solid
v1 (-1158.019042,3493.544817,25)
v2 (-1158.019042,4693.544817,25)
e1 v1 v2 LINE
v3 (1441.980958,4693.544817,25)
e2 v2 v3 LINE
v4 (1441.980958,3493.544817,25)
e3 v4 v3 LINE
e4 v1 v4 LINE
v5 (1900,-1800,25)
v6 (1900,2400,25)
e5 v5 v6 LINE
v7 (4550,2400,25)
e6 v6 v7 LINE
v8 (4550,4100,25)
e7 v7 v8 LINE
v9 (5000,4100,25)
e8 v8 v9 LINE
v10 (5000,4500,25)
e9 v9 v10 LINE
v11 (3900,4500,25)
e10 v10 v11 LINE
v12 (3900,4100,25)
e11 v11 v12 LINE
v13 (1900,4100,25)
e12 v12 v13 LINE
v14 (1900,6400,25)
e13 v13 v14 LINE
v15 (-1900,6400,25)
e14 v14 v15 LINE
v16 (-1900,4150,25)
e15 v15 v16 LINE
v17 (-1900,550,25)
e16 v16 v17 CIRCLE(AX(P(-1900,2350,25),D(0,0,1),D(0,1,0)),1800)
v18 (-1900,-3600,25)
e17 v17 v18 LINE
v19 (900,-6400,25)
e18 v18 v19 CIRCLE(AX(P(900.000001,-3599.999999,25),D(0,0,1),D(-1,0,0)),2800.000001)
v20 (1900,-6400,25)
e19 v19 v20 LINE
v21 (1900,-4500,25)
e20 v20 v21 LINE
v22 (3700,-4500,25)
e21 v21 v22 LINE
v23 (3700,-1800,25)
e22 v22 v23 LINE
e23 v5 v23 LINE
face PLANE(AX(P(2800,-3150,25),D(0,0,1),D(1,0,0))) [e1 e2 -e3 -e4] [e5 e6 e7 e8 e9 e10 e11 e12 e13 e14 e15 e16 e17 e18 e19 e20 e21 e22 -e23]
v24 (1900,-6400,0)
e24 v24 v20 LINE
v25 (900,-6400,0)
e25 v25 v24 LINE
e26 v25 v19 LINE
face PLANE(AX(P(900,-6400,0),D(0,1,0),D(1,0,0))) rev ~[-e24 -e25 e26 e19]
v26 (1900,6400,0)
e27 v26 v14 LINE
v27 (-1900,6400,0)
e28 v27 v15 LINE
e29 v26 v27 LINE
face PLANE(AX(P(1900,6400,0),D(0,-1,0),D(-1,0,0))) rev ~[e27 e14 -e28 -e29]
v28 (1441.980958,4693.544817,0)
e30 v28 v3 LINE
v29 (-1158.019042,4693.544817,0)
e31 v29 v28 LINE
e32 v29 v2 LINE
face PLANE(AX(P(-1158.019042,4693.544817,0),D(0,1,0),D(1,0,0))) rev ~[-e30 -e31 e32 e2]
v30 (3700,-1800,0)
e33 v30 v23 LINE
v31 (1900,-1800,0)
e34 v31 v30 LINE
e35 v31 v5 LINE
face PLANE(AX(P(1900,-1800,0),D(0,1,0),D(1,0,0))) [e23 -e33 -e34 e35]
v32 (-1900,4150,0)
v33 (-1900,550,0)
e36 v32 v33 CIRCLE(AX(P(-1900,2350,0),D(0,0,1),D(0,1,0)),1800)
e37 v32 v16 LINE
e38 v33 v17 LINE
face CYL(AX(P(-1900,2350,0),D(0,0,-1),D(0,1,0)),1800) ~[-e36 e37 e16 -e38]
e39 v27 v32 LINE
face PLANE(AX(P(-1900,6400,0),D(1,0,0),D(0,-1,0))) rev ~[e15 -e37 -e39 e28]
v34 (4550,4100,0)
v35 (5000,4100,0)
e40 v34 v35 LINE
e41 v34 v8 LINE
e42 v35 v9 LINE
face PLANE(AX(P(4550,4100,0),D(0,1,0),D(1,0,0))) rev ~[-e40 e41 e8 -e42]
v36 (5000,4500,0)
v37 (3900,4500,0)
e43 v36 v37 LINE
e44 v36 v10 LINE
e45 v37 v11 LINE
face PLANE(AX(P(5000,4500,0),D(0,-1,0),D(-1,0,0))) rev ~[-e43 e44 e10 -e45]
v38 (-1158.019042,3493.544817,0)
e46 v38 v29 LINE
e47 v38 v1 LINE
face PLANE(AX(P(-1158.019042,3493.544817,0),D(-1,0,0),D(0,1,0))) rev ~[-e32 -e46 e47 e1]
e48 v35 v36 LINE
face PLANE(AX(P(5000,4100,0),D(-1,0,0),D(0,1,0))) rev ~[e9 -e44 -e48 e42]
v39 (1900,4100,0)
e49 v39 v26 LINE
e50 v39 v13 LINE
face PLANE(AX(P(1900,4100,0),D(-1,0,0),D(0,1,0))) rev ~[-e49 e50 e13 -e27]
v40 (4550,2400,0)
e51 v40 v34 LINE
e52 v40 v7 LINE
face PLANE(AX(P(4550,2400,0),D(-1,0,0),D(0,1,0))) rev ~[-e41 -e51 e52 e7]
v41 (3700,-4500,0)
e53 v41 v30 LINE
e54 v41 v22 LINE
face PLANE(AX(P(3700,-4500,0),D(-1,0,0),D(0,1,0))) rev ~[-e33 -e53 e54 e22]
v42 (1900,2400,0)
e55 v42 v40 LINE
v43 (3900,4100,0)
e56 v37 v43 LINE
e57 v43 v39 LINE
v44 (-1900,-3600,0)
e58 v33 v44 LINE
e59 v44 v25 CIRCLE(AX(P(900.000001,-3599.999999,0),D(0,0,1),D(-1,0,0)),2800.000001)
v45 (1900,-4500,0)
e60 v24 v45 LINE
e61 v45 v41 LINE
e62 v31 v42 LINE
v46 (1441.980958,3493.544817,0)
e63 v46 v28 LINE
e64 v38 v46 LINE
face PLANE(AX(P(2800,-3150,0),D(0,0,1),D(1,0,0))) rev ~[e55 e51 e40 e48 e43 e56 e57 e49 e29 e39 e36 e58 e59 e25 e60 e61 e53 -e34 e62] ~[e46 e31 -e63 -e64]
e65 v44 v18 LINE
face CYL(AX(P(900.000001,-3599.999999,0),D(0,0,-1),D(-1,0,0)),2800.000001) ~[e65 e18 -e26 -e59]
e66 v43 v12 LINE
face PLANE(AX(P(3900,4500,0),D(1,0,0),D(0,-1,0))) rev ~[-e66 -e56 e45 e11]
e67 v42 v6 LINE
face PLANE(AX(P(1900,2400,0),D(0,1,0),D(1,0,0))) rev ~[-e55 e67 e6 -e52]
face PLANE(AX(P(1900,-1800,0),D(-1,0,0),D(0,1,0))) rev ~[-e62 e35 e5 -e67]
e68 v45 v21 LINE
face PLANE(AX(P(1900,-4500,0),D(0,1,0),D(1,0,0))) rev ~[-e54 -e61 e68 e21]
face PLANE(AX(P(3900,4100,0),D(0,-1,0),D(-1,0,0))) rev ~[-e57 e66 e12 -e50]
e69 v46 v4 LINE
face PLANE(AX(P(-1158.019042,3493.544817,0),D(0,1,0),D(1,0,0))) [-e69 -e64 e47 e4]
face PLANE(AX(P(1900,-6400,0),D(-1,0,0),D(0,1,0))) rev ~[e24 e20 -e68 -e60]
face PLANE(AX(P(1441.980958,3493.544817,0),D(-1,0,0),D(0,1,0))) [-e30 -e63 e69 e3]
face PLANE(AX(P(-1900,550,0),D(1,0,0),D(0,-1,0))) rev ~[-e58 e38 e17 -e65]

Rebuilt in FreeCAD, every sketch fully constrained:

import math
import FreeCAD as App
import Part
import Sketcher

V = App.Vector

doc = App.newDocument("Part")
body = doc.addObject("PartDesign::Body", "Body")

sketch1 = body.newObject("Sketcher::SketchObject", "Sketch")
sketch1.AttachmentSupport = (doc.getObject("XY_Plane"), [""])
sketch1.MapMode = "FlatFace"
sketch1.addGeometry(Part.LineSegment(V(1900, -4500, 0), V(3700, -4500, 0)), False)
sketch1.addGeometry(Part.LineSegment(V(3700, -4500, 0), V(3700, -1800, 0)), False)
sketch1.addGeometry(Part.LineSegment(V(3700, -1800, 0), V(1900, -1800, 0)), False)
sketch1.addGeometry(Part.LineSegment(V(1900, -1800, 0), V(1900, 2400, 0)), False)
sketch1.addGeometry(Part.LineSegment(V(1900, 2400, 0), V(4550, 2400, 0)), False)
sketch1.addGeometry(Part.LineSegment(V(4550, 2400, 0), V(4550, 4100, 0)), False)
sketch1.addGeometry(Part.LineSegment(V(4550, 4100, 0), V(5000, 4100, 0)), False)
sketch1.addGeometry(Part.LineSegment(V(5000, 4100, 0), V(5000, 4500, 0)), False)
sketch1.addGeometry(Part.LineSegment(V(5000, 4500, 0), V(3900, 4500, 0)), False)
sketch1.addGeometry(Part.LineSegment(V(3900, 4500, 0), V(3900, 4100, 0)), False)
sketch1.addGeometry(Part.LineSegment(V(3900, 4100, 0), V(1900, 4100, 0)), False)
sketch1.addGeometry(Part.LineSegment(V(1900, 4100, 0), V(1900, 6400, 0)), False)
sketch1.addGeometry(Part.LineSegment(V(1900, 6400, 0), V(-1900, 6400, 0)), False)
sketch1.addGeometry(Part.LineSegment(V(-1900, 6400, 0), V(-1900, 4150, 0)), False)
sketch1.addGeometry(Part.ArcOfCircle(Part.Circle(V(-1900, 2350, 0), V(0, 0, 1), 1800), math.radians(90), math.radians(270)), False)
sketch1.addGeometry(Part.LineSegment(V(-1900, 550, 0), V(-1900, -3600, 0)), False)
sketch1.addGeometry(Part.ArcOfCircle(Part.Circle(V(900.000001, -3599.999999, 0), V(0, 0, 1), 2800.000001), math.radians(-180), math.radians(-90)), False)
sketch1.addGeometry(Part.LineSegment(V(900, -6400, 0), V(1900, -6400, 0)), False)
sketch1.addGeometry(Part.LineSegment(V(1900, -6400, 0), V(1900, -4500, 0)), False)
sketch1.addGeometry(Part.LineSegment(V(1441.980958, 3493.544817, 0), V(-1158.019042, 3493.544817, 0)), False)
sketch1.addGeometry(Part.LineSegment(V(-1158.019042, 3493.544817, 0), V(-1158.019042, 4693.544817, 0)), False)
sketch1.addGeometry(Part.LineSegment(V(-1158.019042, 4693.544817, 0), V(1441.980958, 4693.544817, 0)), False)
sketch1.addGeometry(Part.LineSegment(V(1441.980958, 4693.544817, 0), V(1441.980958, 3493.544817, 0)), False)
sketch1.addConstraint(Sketcher.Constraint("Coincident", 0, 2, 1, 1))
sketch1.addConstraint(Sketcher.Constraint("Coincident", 1, 2, 2, 1))
sketch1.addConstraint(Sketcher.Constraint("Coincident", 2, 2, 3, 1))
sketch1.addConstraint(Sketcher.Constraint("Coincident", 3, 2, 4, 1))
sketch1.addConstraint(Sketcher.Constraint("Coincident", 4, 2, 5, 1))
sketch1.addConstraint(Sketcher.Constraint("Coincident", 5, 2, 6, 1))
sketch1.addConstraint(Sketcher.Constraint("Coincident", 6, 2, 7, 1))
sketch1.addConstraint(Sketcher.Constraint("Coincident", 7, 2, 8, 1))
sketch1.addConstraint(Sketcher.Constraint("Coincident", 8, 2, 9, 1))
sketch1.addConstraint(Sketcher.Constraint("Coincident", 9, 2, 10, 1))
sketch1.addConstraint(Sketcher.Constraint("Coincident", 10, 2, 11, 1))
sketch1.addConstraint(Sketcher.Constraint("Coincident", 11, 2, 12, 1))
sketch1.addConstraint(Sketcher.Constraint("Coincident", 12, 2, 13, 1))
sketch1.addConstraint(Sketcher.Constraint("Coincident", 13, 2, 14, 1))
sketch1.addConstraint(Sketcher.Constraint("Coincident", 14, 2, 15, 1))
sketch1.addConstraint(Sketcher.Constraint("Coincident", 15, 2, 16, 1))
sketch1.addConstraint(Sketcher.Constraint("Coincident", 16, 2, 17, 1))
sketch1.addConstraint(Sketcher.Constraint("Coincident", 17, 2, 18, 1))
sketch1.addConstraint(Sketcher.Constraint("Coincident", 18, 2, 0, 1))
sketch1.addConstraint(Sketcher.Constraint("Coincident", 19, 2, 20, 1))
sketch1.addConstraint(Sketcher.Constraint("Coincident", 20, 2, 21, 1))
sketch1.addConstraint(Sketcher.Constraint("Coincident", 21, 2, 22, 1))
sketch1.addConstraint(Sketcher.Constraint("Coincident", 22, 2, 19, 1))
sketch1.addConstraint(Sketcher.Constraint("Horizontal", 0))
sketch1.addConstraint(Sketcher.Constraint("Vertical", 1))
sketch1.addConstraint(Sketcher.Constraint("Horizontal", 2))
sketch1.addConstraint(Sketcher.Constraint("Vertical", 3))
sketch1.addConstraint(Sketcher.Constraint("Horizontal", 4))
sketch1.addConstraint(Sketcher.Constraint("Vertical", 5))
sketch1.addConstraint(Sketcher.Constraint("Horizontal", 6))
sketch1.addConstraint(Sketcher.Constraint("Vertical", 7))
sketch1.addConstraint(Sketcher.Constraint("Horizontal", 8))
sketch1.addConstraint(Sketcher.Constraint("Vertical", 9))
sketch1.addConstraint(Sketcher.Constraint("Horizontal", 10))
sketch1.addConstraint(Sketcher.Constraint("Vertical", 11))
sketch1.addConstraint(Sketcher.Constraint("Horizontal", 12))
sketch1.addConstraint(Sketcher.Constraint("Vertical", 13))
sketch1.addConstraint(Sketcher.Constraint("Vertical", 15))
sketch1.addConstraint(Sketcher.Constraint("Horizontal", 17))
sketch1.addConstraint(Sketcher.Constraint("Vertical", 18))
sketch1.addConstraint(Sketcher.Constraint("Horizontal", 19))
sketch1.addConstraint(Sketcher.Constraint("Vertical", 20))
sketch1.addConstraint(Sketcher.Constraint("Horizontal", 21))
sketch1.addConstraint(Sketcher.Constraint("Vertical", 22))
sketch1.addConstraint(Sketcher.Constraint("Symmetric", 12, 2, 17, 2, -1, 1))
sketch1.addConstraint(Sketcher.Constraint("Horizontal", 6, 2, 9, 2))
sketch1.addConstraint(Sketcher.Constraint("Horizontal", 16, 3, 15, 2))
sketch1.addConstraint(Sketcher.Constraint("Vertical", 3, 2, 10, 2))
sketch1.addConstraint(Sketcher.Constraint("Vertical", 14, 3, 12, 2))
sketch1.addConstraint(Sketcher.Constraint("Vertical", 11, 2, 17, 2))
sketch1.addConstraint(Sketcher.Constraint("Radius", 14, 1800.0))
sketch1.addConstraint(Sketcher.Constraint("Radius", 16, 2800.000001))
sketch1.addConstraint(Sketcher.Constraint("DistanceX", 0, 1, 0, 2, 1800.0))
sketch1.addConstraint(Sketcher.Constraint("DistanceX", 4, 1, 4, 2, 2650.0))
sketch1.addConstraint(Sketcher.Constraint("DistanceX", 6, 1, 6, 2, 450.0))
sketch1.addConstraint(Sketcher.Constraint("DistanceX", 8, 2, 8, 1, 1100.0))
sketch1.addConstraint(Sketcher.Constraint("DistanceX", 12, 2, 12, 1, 3800.0))
sketch1.addConstraint(Sketcher.Constraint("DistanceX", 17, 1, 17, 2, 1000.0))
sketch1.addConstraint(Sketcher.Constraint("DistanceX", 19, 2, 19, 1, 2600.0))
sketch1.addConstraint(Sketcher.Constraint("DistanceY", 1, 1, 1, 2, 2700.0))
sketch1.addConstraint(Sketcher.Constraint("DistanceY", 3, 1, 3, 2, 4200.0))
sketch1.addConstraint(Sketcher.Constraint("DistanceY", 5, 1, 5, 2, 1700.0))
sketch1.addConstraint(Sketcher.Constraint("DistanceY", 7, 1, 7, 2, 400.0))
sketch1.addConstraint(Sketcher.Constraint("DistanceY", 11, 1, 11, 2, 2300.0))
sketch1.addConstraint(Sketcher.Constraint("DistanceY", 13, 2, 13, 1, 2250.0))
sketch1.addConstraint(Sketcher.Constraint("DistanceY", 15, 2, 15, 1, 4150.0))
sketch1.addConstraint(Sketcher.Constraint("DistanceY", 20, 1, 20, 2, 1200.0))
sketch1.addConstraint(Sketcher.Constraint("DistanceX", -1, 1, 16, 3, 900.000001))
sketch1.addConstraint(Sketcher.Constraint("DistanceX", 19, 2, -1, 1, 1158.019042))
sketch1.addConstraint(Sketcher.Constraint("DistanceY", -1, 1, 19, 2, 3493.544817))
pad1 = body.newObject("PartDesign::Pad", "Pad")
pad1.Profile = sketch1
pad1.Length = 25

doc.recompute()
